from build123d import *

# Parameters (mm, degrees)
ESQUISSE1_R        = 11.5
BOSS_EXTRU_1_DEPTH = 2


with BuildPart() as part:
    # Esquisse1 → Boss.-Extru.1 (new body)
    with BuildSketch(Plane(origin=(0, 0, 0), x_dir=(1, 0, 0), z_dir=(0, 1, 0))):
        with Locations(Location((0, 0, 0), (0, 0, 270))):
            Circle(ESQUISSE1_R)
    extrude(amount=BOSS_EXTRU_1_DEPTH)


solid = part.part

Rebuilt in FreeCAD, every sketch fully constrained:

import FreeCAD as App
import Part
import Sketcher

doc = App.newDocument("Part")
body = doc.addObject("PartDesign::Body", "Body")

sketch1 = body.newObject("Sketcher::SketchObject", "Sketch")
sketch1.AttachmentSupport = (doc.getObject("XZ_Plane"), [""])
sketch1.MapMode = "FlatFace"
sketch1.addGeometry(Part.Circle(App.Vector(0, 0, 0), App.Vector(0, 0, 1), 12), False)
sketch1.addConstraint(Sketcher.Constraint("Coincident", 0, 3, -1, 1))
sketch1.addConstraint(Sketcher.Constraint("Diameter", 0, 23.0))
pad1 = body.newObject("PartDesign::Pad", "Pad")
pad1.Profile = sketch1
pad1.Length = 2
pad1.Reversed = True

doc.recompute()
